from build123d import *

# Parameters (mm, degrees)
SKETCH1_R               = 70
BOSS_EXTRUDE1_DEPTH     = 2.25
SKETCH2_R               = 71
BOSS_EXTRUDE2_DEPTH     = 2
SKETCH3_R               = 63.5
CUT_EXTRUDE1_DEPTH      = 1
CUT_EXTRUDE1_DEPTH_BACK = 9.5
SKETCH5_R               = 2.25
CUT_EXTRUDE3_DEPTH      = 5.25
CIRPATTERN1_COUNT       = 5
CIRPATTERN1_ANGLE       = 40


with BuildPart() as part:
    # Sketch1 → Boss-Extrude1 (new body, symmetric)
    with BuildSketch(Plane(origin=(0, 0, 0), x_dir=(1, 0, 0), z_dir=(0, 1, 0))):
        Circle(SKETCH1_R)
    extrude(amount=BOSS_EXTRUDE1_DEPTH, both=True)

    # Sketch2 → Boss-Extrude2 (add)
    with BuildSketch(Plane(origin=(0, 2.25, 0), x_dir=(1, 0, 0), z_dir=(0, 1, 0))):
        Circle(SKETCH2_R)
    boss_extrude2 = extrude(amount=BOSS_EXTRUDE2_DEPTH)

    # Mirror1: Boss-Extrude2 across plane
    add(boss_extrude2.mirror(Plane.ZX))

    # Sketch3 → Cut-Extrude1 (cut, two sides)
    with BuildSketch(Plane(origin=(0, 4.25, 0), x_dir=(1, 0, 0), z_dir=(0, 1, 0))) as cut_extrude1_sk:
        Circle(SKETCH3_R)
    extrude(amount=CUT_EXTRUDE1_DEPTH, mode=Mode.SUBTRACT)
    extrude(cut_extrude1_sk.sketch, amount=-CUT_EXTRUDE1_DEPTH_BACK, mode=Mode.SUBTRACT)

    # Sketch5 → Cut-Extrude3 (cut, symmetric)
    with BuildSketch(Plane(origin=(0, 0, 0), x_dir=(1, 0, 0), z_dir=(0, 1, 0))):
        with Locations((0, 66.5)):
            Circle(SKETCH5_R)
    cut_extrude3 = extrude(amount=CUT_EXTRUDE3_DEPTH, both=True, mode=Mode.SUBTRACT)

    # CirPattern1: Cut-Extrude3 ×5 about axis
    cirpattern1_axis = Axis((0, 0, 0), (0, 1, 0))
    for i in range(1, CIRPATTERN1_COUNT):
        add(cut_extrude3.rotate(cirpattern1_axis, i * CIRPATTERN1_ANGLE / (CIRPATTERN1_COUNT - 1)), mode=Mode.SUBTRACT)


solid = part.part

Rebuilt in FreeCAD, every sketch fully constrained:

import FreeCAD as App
import Part
import Sketcher
from FreeCAD import Vector

doc = App.newDocument("Part")
body = doc.addObject("PartDesign::Body", "Body")

# Sketch on XZ plane
sketch1 = body.newObject("Sketcher::SketchObject", "Sketch")
sketch1.AttachmentSupport = (doc.getObject("XZ_Plane"), [""])
sketch1.MapMode = "FlatFace"
sketch1.addGeometry(Part.Circle(Vector(0, 0, 0), Vector(0, 0, 1), 70), False)
sketch1.addConstraint([
    Sketcher.Constraint("Coincident", 0, 3, -1, 1),
    Sketcher.Constraint("Diameter", 0, 140.0),
])
pad1 = body.newObject("PartDesign::Pad", "Pad")
pad1.Profile = sketch1
pad1.Length = 4.5
pad1.Midplane = True

# Sketch on XZ plane
sketch2 = body.newObject("Sketcher::SketchObject", "Sketch001")
sketch2.AttachmentSupport = (doc.getObject("XZ_Plane"), [""])
sketch2.MapMode = "FlatFace"
sketch2.AttachmentOffset = App.Placement(Vector(0, 0, -2.25), App.Rotation())
sketch2.addGeometry(Part.Circle(Vector(0, 0, 0), Vector(0, 0, 1), 71), False)
sketch2.addConstraint([
    Sketcher.Constraint("Coincident", 0, 3, -1, 1),
    Sketcher.Constraint("Diameter", 0, 142.0),
])
pad2 = body.newObject("PartDesign::Pad", "Pad001")
pad2.Profile = sketch2
pad2.Length = 2
pad2.Reversed = True
doc.recompute()

mirrored = body.newObject("PartDesign::Mirrored", "Mirrored")
mirrored.Originals = [pad2]
mirrored.MirrorPlane = (doc.getObject("XZ_Plane"), [""])
body.Tip = mirrored

# Sketch on XZ plane
sketch3 = body.newObject("Sketcher::SketchObject", "Sketch002")
sketch3.AttachmentSupport = (doc.getObject("XZ_Plane"), [""])
sketch3.MapMode = "FlatFace"
sketch3.AttachmentOffset = App.Placement(Vector(0, 0, -4.25), App.Rotation())
sketch3.addGeometry(Part.Circle(Vector(0, 0, 0), Vector(0, 0, 1), 63.5), False)
sketch3.addConstraint([
    Sketcher.Constraint("Coincident", 0, 3, -1, 1),
    Sketcher.Constraint("Diameter", 0, 127.0),
])
pocket1 = body.newObject("PartDesign::Pocket", "Pocket")
pocket1.Profile = sketch3
pocket1.Type = "ThroughAll"
pocket1.Midplane = True

# Sketch on XZ plane
sketch4 = body.newObject("Sketcher::SketchObject", "Sketch003")
sketch4.AttachmentSupport = (doc.getObject("XZ_Plane"), [""])
sketch4.MapMode = "FlatFace"
sketch4.addGeometry(Part.Circle(Vector(0, -66.5, 0), Vector(0, 0, 1), 2.25), False)
sketch4.addConstraint([
    Sketcher.Constraint("PointOnObject", 0, 3, -2),
    Sketcher.Constraint("Diameter", 0, 4.5),
    Sketcher.Constraint("DistanceY", 0, 3, -1, 1, 66.5),
])
pocket2 = body.newObject("PartDesign::Pocket", "Pocket001")
pocket2.Profile = sketch4
pocket2.Length = 10.5
pocket2.Midplane = True
doc.recompute()

polarpattern = body.newObject("PartDesign::PolarPattern", "PolarPattern")
polarpattern.Originals = [pocket2]
polarpattern.Axis = (doc.getObject("Y_Axis"), [""])
polarpattern.Angle = 40
polarpattern.Occurrences = 5
body.Tip = polarpattern

doc.recompute()
